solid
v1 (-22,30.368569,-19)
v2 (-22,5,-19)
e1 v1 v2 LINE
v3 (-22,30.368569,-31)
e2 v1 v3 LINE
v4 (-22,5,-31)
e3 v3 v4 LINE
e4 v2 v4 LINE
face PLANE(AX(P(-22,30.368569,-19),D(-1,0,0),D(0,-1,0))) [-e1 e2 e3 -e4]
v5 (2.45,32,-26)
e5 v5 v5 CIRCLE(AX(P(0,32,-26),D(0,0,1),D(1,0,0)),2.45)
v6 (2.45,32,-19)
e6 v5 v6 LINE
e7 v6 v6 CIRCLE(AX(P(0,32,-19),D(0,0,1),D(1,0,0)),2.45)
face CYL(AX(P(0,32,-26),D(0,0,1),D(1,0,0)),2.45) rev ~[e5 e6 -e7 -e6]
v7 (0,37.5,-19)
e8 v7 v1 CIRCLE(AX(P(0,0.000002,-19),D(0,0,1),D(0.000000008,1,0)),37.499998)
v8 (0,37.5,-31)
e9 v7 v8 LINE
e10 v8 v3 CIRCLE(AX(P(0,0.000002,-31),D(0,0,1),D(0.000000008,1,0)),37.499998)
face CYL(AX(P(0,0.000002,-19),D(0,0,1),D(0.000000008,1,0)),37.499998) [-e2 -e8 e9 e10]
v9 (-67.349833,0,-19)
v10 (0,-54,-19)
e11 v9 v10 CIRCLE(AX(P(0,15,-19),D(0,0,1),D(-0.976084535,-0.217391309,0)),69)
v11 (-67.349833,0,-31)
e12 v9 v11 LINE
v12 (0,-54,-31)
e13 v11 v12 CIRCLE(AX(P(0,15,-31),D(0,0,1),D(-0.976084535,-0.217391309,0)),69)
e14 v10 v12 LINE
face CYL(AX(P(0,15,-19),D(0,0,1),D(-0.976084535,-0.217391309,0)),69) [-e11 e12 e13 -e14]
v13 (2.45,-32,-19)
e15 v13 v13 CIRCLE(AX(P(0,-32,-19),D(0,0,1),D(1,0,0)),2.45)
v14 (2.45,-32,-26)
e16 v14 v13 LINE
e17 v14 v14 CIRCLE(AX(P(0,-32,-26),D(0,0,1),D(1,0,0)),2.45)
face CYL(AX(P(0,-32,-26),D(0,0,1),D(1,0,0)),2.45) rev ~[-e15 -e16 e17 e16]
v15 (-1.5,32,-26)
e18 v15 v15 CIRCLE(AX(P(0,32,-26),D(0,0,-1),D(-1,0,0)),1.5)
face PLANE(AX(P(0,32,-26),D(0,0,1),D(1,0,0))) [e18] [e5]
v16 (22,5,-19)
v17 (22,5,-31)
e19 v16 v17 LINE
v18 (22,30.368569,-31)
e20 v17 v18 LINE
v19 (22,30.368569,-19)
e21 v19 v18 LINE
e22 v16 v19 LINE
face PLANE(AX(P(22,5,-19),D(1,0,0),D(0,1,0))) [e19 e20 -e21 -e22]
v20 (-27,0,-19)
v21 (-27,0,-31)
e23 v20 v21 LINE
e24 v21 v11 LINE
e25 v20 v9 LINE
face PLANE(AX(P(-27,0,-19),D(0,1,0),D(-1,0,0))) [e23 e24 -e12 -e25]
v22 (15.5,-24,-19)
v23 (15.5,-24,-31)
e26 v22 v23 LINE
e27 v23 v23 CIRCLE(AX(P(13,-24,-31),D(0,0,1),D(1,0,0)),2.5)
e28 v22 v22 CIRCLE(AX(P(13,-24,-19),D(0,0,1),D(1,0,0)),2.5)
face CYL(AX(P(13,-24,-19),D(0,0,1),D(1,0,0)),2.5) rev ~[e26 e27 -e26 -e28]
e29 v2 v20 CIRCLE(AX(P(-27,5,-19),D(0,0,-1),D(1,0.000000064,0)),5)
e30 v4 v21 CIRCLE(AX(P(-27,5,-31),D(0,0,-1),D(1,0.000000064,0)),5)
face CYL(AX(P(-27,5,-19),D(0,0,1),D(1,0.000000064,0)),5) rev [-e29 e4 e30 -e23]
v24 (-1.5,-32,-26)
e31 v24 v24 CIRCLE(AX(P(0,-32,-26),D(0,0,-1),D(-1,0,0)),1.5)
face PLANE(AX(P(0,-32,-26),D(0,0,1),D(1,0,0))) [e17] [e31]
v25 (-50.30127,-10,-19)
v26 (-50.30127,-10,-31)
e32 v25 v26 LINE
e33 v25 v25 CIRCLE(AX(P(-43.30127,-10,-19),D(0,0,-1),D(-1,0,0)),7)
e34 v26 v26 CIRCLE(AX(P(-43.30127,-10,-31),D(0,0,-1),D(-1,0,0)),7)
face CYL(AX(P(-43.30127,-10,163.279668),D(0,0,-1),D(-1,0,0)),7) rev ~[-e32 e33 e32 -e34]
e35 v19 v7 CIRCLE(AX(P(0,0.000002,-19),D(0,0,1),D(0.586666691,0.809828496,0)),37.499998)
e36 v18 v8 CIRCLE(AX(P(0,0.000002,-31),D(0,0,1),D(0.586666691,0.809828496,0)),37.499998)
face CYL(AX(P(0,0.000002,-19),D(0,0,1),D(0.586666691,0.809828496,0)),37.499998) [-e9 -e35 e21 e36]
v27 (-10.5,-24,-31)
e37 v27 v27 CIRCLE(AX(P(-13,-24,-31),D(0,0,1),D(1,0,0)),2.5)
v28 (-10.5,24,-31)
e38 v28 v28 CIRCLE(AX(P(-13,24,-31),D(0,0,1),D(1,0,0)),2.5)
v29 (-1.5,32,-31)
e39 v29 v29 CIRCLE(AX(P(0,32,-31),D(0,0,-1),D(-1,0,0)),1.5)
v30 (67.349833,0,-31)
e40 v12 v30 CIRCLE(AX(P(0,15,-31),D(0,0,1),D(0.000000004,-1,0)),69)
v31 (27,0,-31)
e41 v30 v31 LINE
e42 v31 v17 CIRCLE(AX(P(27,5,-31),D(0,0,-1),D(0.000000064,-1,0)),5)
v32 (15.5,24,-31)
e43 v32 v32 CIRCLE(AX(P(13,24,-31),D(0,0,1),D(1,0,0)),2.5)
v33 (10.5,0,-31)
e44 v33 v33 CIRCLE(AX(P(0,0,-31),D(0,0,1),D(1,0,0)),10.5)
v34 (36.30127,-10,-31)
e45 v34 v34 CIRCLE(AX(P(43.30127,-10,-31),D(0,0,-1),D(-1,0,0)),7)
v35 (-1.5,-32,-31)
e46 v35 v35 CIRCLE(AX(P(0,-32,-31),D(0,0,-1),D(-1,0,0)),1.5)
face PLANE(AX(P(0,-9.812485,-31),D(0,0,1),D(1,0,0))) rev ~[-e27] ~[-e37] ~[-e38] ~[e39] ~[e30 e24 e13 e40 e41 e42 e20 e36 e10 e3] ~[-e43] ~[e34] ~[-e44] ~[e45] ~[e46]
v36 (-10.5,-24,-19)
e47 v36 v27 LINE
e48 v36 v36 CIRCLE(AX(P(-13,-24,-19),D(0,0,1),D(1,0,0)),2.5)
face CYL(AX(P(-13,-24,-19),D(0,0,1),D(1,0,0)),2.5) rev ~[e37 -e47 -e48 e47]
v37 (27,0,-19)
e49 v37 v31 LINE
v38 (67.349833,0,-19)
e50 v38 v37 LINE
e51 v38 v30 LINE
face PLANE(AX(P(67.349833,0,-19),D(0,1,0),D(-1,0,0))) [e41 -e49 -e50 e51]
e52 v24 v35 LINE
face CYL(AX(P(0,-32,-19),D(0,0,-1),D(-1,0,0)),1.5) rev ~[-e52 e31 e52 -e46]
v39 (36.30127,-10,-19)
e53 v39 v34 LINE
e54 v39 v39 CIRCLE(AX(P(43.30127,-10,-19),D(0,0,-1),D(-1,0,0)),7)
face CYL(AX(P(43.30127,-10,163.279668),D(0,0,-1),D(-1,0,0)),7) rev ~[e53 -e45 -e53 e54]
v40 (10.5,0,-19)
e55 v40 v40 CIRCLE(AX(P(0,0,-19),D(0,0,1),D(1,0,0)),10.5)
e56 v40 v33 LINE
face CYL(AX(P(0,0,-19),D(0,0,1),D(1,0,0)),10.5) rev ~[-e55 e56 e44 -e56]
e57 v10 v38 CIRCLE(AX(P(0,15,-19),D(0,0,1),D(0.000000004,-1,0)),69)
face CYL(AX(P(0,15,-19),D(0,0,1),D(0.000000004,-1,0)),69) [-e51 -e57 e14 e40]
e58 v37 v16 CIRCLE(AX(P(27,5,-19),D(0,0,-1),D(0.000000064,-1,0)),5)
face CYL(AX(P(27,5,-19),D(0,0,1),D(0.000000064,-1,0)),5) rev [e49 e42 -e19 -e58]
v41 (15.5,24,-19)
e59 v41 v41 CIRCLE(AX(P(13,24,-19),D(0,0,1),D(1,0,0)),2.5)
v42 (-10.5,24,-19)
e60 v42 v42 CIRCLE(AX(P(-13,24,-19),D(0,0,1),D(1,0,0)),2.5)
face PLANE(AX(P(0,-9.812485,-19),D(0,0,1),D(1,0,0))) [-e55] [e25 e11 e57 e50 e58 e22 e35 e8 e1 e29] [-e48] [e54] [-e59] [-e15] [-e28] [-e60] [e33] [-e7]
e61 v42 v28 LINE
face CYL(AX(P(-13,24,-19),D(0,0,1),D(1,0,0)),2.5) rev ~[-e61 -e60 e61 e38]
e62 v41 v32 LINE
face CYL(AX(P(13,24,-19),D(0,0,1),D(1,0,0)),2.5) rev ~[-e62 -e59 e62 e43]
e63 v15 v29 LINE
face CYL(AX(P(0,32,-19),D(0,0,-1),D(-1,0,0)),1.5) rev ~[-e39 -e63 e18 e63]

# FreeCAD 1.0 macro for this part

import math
import FreeCAD as App
import Part
import Sketcher

V = App.Vector
Q = App.Units.Quantity

doc = App.newDocument("Part")
body = doc.addObject("PartDesign::Body", "Body")

# Sketch on XY plane
sketch1 = body.newObject("Sketcher::SketchObject", "Sketch")
sketch1.AttachmentSupport = (doc.getObject("XY_Plane"), [""])
sketch1.MapMode = "FlatFace"
sketch1.AttachmentOffset = App.Placement(V(0, 0, -19), App.Rotation())
sketch1.addGeometry([
    Part.LineSegment(V(-27, 0, 0), V(-67.3, 0, 0)),  # 0
    Part.ArcOfCircle(Part.Circle(V(0, 15, 0), V(0, 0, 1), 69), math.radians(-167), math.radians(-90)),  # 1
    Part.ArcOfCircle(Part.Circle(V(0, 15, 0), V(0, 0, 1), 69), math.radians(-90), math.radians(-13)),  # 2
    Part.LineSegment(V(67.3, 0, 0), V(27, 0, 0)),  # 3
    Part.ArcOfCircle(Part.Circle(V(27, 5, 0), V(0, 0, 1), 5), math.radians(180), math.radians(270)),  # 4
    Part.LineSegment(V(22, 5, 0), V(22, 30.4, 0)),  # 5
    Part.ArcOfCircle(Part.Circle(V(0, 0, 0), V(0, 0, 1), 37.5), math.radians(54), math.radians(90)),  # 6
    Part.ArcOfCircle(Part.Circle(V(0, 0, 0), V(0, 0, 1), 37.5), math.radians(90), math.radians(126)),  # 7
    Part.LineSegment(V(-22, 30.4, 0), V(-22, 5, 0)),  # 8
    Part.ArcOfCircle(Part.Circle(V(-27, 5, 0), V(0, 0, 1), 5), math.radians(-90), math.radians(0)),  # 9
    Part.Circle(V(-13, -24, 0), V(0, 0, 1), 2.5),  # 10
    Part.Circle(V(13, -24, 0), V(0, 0, 1), 2.5),  # 11
    Part.Circle(V(-13, 24, 0), V(0, 0, 1), 2.5),  # 12
    Part.Circle(V(0, 0, 0), V(0, 0, 1), 10.5),  # 13
    Part.Circle(V(13, 24, 0), V(0, 0, 1), 2.5),  # 14
], False)
sketch1.addConstraint([
    Sketcher.Constraint("Coincident", 0, 2, 1, 1),
    Sketcher.Constraint("Tangent", 1, 2, 2, 1),
    Sketcher.Constraint("Coincident", 2, 2, 3, 1),
    Sketcher.Constraint("Tangent", 3, 2, 4, 2),
    Sketcher.Constraint("Tangent", 4, 1, 5, 1),
    Sketcher.Constraint("Coincident", 5, 2, 6, 1),
    Sketcher.Constraint("Tangent", 6, 2, 7, 1),
    Sketcher.Constraint("Coincident", 7, 2, 8, 1),
    Sketcher.Constraint("Tangent", 8, 2, 9, 2),
    Sketcher.Constraint("Tangent", 9, 1, 0, 1),
    Sketcher.Constraint("Horizontal", 0),
    Sketcher.Constraint("Horizontal", 3),
    Sketcher.Constraint("Vertical", 5),
    Sketcher.Constraint("Vertical", 8),
    Sketcher.Constraint("Coincident", 6, 3, -1, 1),
    Sketcher.Constraint("Coincident", 13, 3, -1, 1),
    Sketcher.Constraint("Equal", 1, 2),
    Sketcher.Constraint("Equal", 6, 7),
    Sketcher.Constraint("Equal", 4, 9),
    Sketcher.Constraint("Equal", 10, 11),
    Sketcher.Constraint("Equal", 11, 12),
    Sketcher.Constraint("Equal", 12, 14),
    Sketcher.Constraint("Symmetric", 11, 3, 12, 3, -1, 1),
    Sketcher.Constraint("Symmetric", 10, 3, 14, 3, -1, 1),
    Sketcher.Constraint("Symmetric", 0, 2, 2, 2, -1, 1),
    Sketcher.Constraint("Symmetric", 4, 3, 9, 3, -2),
    Sketcher.Constraint("Symmetric", 10, 3, 11, 3, -2),
    Sketcher.Constraint("PointOnObject", 1, 2, -2),
    Sketcher.Constraint("PointOnObject", 6, 2, -2),
    Sketcher.Constraint("Diameter", 10, Q("5 mm")),
    Sketcher.Constraint("Diameter", 13, Q("21 mm")),
    Sketcher.Constraint("Radius", 1, Q("69 mm")),
    Sketcher.Constraint("Radius", 4, Q("5 mm")),
    Sketcher.Constraint("DistanceY", -1, 1, 1, 3, Q("15 mm")),
    Sketcher.Constraint("DistanceX", -1, 1, 4, 3, Q("27 mm")),
    Sketcher.Constraint("DistanceX", 10, 3, -1, 1, Q("13 mm")),
    Sketcher.Constraint("DistanceY", 10, 3, -1, 1, Q("24 mm")),
    Sketcher.Constraint("DistanceY", -1, 1, 6, 2, Q("37.5 mm")),
])
pad1 = body.newObject("PartDesign::Pad", "Pad")
pad1.Profile = sketch1
pad1.Length = 12
pad1.Reversed = True

# Sketch on XY plane
sketch2 = body.newObject("Sketcher::SketchObject", "Sketch001")
sketch2.AttachmentSupport = (doc.getObject("XY_Plane"), [""])
sketch2.MapMode = "FlatFace"
sketch2.AttachmentOffset = App.Placement(V(0, 0, -19), App.Rotation())
sketch2.addGeometry([
    Part.Circle(V(0, 32, 0), V(0, 0, 1), 1.5),
    Part.Circle(V(0, -32, 0), V(0, 0, 1), 1.5),
], False)
sketch2.addConstraint([
    Sketcher.Constraint("Equal", 0, 1),
    Sketcher.Constraint("Symmetric", 0, 3, 1, 3, -1, 1),
    Sketcher.Constraint("PointOnObject", 0, 3, -2),
    Sketcher.Constraint("Diameter", 0, Q("3 mm")),
    Sketcher.Constraint("DistanceY", -1, 1, 0, 3, Q("32 mm")),
])
doc.recompute()
hole = body.newObject("PartDesign::Hole", "Hole")
hole.Profile = sketch2
hole.ThreadType = "None"
hole.Diameter = 3
hole.DepthType = "ThroughAll"
hole.HoleCutType = "Counterbore"
hole.HoleCutDiameter = 4.9
hole.HoleCutDepth = 7

# Sketch on XY plane
sketch3 = body.newObject("Sketcher::SketchObject", "Sketch002")
sketch3.AttachmentSupport = (doc.getObject("XY_Plane"), [""])
sketch3.MapMode = "FlatFace"
sketch3.addGeometry([
    Part.Circle(V(-43, -10, 0), V(0, 0, 1), 7),
    Part.Circle(V(43, -10, 0), V(0, 0, 1), 7),
], False)
sketch3.addConstraint([
    Sketcher.Constraint("Equal", 0, 1),
    Sketcher.Constraint("Symmetric", 0, 3, 1, 3, -2),
    Sketcher.Constraint("Diameter", 0, Q("14 mm")),
    Sketcher.Constraint("DistanceY", 0, 3, -1, 1, Q("10 mm")),
    Sketcher.Constraint("DistanceX", 0, 3, -1, 1, Q("43.30127 mm")),
])
doc.recompute()
hole2 = body.newObject("PartDesign::Hole", "Hole001")
hole2.Profile = sketch3
hole2.ThreadType = "None"
hole2.Diameter = 14
hole2.DepthType = "ThroughAll"

doc.recompute()
